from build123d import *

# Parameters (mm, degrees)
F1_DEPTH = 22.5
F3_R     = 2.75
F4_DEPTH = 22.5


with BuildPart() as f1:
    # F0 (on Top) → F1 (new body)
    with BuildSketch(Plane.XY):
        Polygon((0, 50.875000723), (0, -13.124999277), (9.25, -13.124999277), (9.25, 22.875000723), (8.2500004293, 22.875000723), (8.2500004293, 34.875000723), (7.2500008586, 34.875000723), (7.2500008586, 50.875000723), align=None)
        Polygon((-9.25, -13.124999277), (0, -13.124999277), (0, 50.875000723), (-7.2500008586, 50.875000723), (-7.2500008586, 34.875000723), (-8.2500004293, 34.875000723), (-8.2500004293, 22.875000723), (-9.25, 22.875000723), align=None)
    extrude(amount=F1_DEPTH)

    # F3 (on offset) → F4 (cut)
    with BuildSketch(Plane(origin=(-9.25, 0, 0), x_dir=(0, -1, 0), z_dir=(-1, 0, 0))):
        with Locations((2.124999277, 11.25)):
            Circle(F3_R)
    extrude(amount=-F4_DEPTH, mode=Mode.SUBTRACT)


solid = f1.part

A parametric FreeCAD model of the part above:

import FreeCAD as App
import Part
import Sketcher
from FreeCAD import Vector

doc = App.newDocument("Part")
body = doc.addObject("PartDesign::Body", "Body")

sketch1 = body.newObject("Sketcher::SketchObject", "Sketch")
sketch1.AttachmentSupport = (doc.getObject("XY_Plane"), [""])
sketch1.MapMode = "FlatFace"
sketch1.addGeometry([
    Part.LineSegment(Vector(9.2, -13.1, 0), Vector(9.2, 22.9, 0)),
    Part.LineSegment(Vector(9.2, 22.9, 0), Vector(8.3, 22.9, 0)),
    Part.LineSegment(Vector(8.3, 22.9, 0), Vector(8.3, 34.9, 0)),
    Part.LineSegment(Vector(8.3, 34.9, 0), Vector(7.3, 34.9, 0)),
    Part.LineSegment(Vector(7.3, 34.9, 0), Vector(7.3, 50.9, 0)),
    Part.LineSegment(Vector(7.3, 50.9, 0), Vector(-7.3, 50.9, 0)),
    Part.LineSegment(Vector(-7.3, 50.9, 0), Vector(-7.3, 34.9, 0)),
    Part.LineSegment(Vector(-7.3, 34.9, 0), Vector(-8.3, 34.9, 0)),
    Part.LineSegment(Vector(-8.3, 34.9, 0), Vector(-8.3, 22.9, 0)),
    Part.LineSegment(Vector(-8.3, 22.9, 0), Vector(-9.2, 22.9, 0)),
    Part.LineSegment(Vector(-9.2, 22.9, 0), Vector(-9.2, -13.1, 0)),
    Part.LineSegment(Vector(-9.2, -13.1, 0), Vector(9.2, -13.1, 0)),
], False)
sketch1.addConstraint([
    Sketcher.Constraint("Coincident", 0, 2, 1, 1),
    Sketcher.Constraint("Coincident", 1, 2, 2, 1),
    Sketcher.Constraint("Coincident", 2, 2, 3, 1),
    Sketcher.Constraint("Coincident", 3, 2, 4, 1),
    Sketcher.Constraint("Coincident", 4, 2, 5, 1),
    Sketcher.Constraint("Coincident", 5, 2, 6, 1),
    Sketcher.Constraint("Coincident", 6, 2, 7, 1),
    Sketcher.Constraint("Coincident", 7, 2, 8, 1),
    Sketcher.Constraint("Coincident", 8, 2, 9, 1),
    Sketcher.Constraint("Coincident", 9, 2, 10, 1),
    Sketcher.Constraint("Coincident", 10, 2, 11, 1),
    Sketcher.Constraint("Coincident", 11, 2, 0, 1),
    Sketcher.Constraint("Vertical", 0),
    Sketcher.Constraint("Horizontal", 1),
    Sketcher.Constraint("Vertical", 2),
    Sketcher.Constraint("Horizontal", 3),
    Sketcher.Constraint("Vertical", 4),
    Sketcher.Constraint("Horizontal", 5),
    Sketcher.Constraint("Vertical", 6),
    Sketcher.Constraint("Horizontal", 7),
    Sketcher.Constraint("Vertical", 8),
    Sketcher.Constraint("Horizontal", 9),
    Sketcher.Constraint("Vertical", 10),
    Sketcher.Constraint("Horizontal", 11),
    Sketcher.Constraint("Symmetric", 3, 2, 6, 2, -2),
    Sketcher.Constraint("Symmetric", 1, 2, 8, 2, -2),
    Sketcher.Constraint("Equal", 1, 3),
    Sketcher.Constraint("Equal", 7, 9),
    Sketcher.Constraint("DistanceX", 1, 2, 1, 1, 1.0),
    Sketcher.Constraint("DistanceY", 0, 1, 0, 2, 36.0),
    Sketcher.Constraint("DistanceY", 2, 1, 2, 2, 12.0),
    Sketcher.Constraint("DistanceY", 4, 1, 4, 2, 16.0),
    Sketcher.Constraint("DistanceX", 5, 2, 5, 1, 14.500002),
    Sketcher.Constraint("DistanceY", -1, 1, 0, 2, 22.875001),
])
pad1 = body.newObject("PartDesign::Pad", "Pad")
pad1.Profile = sketch1
pad1.Length = 22.5

sketch2 = body.newObject("Sketcher::SketchObject", "Sketch001")
sketch2.AttachmentSupport = (doc.getObject("YZ_Plane"), [""])
sketch2.MapMode = "FlatFace"
sketch2.AttachmentOffset = App.Placement(Vector(0, 0, -9.25), App.Rotation())
sketch2.addGeometry(Part.Circle(Vector(-2.1, 11.2, 0), Vector(0, 0, 1), 2.8), False)
sketch2.addConstraint([
    Sketcher.Constraint("Diameter", 0, 5.5),
    Sketcher.Constraint("DistanceY", -1, 1, 0, 3, 11.25),
    Sketcher.Constraint("DistanceX", 0, 3, -1, 1, 2.124999),
])
pocket1 = body.newObject("PartDesign::Pocket", "Pocket")
pocket1.Profile = sketch2
pocket1.Length = 22.5
pocket1.Reversed = True

doc.recompute()
